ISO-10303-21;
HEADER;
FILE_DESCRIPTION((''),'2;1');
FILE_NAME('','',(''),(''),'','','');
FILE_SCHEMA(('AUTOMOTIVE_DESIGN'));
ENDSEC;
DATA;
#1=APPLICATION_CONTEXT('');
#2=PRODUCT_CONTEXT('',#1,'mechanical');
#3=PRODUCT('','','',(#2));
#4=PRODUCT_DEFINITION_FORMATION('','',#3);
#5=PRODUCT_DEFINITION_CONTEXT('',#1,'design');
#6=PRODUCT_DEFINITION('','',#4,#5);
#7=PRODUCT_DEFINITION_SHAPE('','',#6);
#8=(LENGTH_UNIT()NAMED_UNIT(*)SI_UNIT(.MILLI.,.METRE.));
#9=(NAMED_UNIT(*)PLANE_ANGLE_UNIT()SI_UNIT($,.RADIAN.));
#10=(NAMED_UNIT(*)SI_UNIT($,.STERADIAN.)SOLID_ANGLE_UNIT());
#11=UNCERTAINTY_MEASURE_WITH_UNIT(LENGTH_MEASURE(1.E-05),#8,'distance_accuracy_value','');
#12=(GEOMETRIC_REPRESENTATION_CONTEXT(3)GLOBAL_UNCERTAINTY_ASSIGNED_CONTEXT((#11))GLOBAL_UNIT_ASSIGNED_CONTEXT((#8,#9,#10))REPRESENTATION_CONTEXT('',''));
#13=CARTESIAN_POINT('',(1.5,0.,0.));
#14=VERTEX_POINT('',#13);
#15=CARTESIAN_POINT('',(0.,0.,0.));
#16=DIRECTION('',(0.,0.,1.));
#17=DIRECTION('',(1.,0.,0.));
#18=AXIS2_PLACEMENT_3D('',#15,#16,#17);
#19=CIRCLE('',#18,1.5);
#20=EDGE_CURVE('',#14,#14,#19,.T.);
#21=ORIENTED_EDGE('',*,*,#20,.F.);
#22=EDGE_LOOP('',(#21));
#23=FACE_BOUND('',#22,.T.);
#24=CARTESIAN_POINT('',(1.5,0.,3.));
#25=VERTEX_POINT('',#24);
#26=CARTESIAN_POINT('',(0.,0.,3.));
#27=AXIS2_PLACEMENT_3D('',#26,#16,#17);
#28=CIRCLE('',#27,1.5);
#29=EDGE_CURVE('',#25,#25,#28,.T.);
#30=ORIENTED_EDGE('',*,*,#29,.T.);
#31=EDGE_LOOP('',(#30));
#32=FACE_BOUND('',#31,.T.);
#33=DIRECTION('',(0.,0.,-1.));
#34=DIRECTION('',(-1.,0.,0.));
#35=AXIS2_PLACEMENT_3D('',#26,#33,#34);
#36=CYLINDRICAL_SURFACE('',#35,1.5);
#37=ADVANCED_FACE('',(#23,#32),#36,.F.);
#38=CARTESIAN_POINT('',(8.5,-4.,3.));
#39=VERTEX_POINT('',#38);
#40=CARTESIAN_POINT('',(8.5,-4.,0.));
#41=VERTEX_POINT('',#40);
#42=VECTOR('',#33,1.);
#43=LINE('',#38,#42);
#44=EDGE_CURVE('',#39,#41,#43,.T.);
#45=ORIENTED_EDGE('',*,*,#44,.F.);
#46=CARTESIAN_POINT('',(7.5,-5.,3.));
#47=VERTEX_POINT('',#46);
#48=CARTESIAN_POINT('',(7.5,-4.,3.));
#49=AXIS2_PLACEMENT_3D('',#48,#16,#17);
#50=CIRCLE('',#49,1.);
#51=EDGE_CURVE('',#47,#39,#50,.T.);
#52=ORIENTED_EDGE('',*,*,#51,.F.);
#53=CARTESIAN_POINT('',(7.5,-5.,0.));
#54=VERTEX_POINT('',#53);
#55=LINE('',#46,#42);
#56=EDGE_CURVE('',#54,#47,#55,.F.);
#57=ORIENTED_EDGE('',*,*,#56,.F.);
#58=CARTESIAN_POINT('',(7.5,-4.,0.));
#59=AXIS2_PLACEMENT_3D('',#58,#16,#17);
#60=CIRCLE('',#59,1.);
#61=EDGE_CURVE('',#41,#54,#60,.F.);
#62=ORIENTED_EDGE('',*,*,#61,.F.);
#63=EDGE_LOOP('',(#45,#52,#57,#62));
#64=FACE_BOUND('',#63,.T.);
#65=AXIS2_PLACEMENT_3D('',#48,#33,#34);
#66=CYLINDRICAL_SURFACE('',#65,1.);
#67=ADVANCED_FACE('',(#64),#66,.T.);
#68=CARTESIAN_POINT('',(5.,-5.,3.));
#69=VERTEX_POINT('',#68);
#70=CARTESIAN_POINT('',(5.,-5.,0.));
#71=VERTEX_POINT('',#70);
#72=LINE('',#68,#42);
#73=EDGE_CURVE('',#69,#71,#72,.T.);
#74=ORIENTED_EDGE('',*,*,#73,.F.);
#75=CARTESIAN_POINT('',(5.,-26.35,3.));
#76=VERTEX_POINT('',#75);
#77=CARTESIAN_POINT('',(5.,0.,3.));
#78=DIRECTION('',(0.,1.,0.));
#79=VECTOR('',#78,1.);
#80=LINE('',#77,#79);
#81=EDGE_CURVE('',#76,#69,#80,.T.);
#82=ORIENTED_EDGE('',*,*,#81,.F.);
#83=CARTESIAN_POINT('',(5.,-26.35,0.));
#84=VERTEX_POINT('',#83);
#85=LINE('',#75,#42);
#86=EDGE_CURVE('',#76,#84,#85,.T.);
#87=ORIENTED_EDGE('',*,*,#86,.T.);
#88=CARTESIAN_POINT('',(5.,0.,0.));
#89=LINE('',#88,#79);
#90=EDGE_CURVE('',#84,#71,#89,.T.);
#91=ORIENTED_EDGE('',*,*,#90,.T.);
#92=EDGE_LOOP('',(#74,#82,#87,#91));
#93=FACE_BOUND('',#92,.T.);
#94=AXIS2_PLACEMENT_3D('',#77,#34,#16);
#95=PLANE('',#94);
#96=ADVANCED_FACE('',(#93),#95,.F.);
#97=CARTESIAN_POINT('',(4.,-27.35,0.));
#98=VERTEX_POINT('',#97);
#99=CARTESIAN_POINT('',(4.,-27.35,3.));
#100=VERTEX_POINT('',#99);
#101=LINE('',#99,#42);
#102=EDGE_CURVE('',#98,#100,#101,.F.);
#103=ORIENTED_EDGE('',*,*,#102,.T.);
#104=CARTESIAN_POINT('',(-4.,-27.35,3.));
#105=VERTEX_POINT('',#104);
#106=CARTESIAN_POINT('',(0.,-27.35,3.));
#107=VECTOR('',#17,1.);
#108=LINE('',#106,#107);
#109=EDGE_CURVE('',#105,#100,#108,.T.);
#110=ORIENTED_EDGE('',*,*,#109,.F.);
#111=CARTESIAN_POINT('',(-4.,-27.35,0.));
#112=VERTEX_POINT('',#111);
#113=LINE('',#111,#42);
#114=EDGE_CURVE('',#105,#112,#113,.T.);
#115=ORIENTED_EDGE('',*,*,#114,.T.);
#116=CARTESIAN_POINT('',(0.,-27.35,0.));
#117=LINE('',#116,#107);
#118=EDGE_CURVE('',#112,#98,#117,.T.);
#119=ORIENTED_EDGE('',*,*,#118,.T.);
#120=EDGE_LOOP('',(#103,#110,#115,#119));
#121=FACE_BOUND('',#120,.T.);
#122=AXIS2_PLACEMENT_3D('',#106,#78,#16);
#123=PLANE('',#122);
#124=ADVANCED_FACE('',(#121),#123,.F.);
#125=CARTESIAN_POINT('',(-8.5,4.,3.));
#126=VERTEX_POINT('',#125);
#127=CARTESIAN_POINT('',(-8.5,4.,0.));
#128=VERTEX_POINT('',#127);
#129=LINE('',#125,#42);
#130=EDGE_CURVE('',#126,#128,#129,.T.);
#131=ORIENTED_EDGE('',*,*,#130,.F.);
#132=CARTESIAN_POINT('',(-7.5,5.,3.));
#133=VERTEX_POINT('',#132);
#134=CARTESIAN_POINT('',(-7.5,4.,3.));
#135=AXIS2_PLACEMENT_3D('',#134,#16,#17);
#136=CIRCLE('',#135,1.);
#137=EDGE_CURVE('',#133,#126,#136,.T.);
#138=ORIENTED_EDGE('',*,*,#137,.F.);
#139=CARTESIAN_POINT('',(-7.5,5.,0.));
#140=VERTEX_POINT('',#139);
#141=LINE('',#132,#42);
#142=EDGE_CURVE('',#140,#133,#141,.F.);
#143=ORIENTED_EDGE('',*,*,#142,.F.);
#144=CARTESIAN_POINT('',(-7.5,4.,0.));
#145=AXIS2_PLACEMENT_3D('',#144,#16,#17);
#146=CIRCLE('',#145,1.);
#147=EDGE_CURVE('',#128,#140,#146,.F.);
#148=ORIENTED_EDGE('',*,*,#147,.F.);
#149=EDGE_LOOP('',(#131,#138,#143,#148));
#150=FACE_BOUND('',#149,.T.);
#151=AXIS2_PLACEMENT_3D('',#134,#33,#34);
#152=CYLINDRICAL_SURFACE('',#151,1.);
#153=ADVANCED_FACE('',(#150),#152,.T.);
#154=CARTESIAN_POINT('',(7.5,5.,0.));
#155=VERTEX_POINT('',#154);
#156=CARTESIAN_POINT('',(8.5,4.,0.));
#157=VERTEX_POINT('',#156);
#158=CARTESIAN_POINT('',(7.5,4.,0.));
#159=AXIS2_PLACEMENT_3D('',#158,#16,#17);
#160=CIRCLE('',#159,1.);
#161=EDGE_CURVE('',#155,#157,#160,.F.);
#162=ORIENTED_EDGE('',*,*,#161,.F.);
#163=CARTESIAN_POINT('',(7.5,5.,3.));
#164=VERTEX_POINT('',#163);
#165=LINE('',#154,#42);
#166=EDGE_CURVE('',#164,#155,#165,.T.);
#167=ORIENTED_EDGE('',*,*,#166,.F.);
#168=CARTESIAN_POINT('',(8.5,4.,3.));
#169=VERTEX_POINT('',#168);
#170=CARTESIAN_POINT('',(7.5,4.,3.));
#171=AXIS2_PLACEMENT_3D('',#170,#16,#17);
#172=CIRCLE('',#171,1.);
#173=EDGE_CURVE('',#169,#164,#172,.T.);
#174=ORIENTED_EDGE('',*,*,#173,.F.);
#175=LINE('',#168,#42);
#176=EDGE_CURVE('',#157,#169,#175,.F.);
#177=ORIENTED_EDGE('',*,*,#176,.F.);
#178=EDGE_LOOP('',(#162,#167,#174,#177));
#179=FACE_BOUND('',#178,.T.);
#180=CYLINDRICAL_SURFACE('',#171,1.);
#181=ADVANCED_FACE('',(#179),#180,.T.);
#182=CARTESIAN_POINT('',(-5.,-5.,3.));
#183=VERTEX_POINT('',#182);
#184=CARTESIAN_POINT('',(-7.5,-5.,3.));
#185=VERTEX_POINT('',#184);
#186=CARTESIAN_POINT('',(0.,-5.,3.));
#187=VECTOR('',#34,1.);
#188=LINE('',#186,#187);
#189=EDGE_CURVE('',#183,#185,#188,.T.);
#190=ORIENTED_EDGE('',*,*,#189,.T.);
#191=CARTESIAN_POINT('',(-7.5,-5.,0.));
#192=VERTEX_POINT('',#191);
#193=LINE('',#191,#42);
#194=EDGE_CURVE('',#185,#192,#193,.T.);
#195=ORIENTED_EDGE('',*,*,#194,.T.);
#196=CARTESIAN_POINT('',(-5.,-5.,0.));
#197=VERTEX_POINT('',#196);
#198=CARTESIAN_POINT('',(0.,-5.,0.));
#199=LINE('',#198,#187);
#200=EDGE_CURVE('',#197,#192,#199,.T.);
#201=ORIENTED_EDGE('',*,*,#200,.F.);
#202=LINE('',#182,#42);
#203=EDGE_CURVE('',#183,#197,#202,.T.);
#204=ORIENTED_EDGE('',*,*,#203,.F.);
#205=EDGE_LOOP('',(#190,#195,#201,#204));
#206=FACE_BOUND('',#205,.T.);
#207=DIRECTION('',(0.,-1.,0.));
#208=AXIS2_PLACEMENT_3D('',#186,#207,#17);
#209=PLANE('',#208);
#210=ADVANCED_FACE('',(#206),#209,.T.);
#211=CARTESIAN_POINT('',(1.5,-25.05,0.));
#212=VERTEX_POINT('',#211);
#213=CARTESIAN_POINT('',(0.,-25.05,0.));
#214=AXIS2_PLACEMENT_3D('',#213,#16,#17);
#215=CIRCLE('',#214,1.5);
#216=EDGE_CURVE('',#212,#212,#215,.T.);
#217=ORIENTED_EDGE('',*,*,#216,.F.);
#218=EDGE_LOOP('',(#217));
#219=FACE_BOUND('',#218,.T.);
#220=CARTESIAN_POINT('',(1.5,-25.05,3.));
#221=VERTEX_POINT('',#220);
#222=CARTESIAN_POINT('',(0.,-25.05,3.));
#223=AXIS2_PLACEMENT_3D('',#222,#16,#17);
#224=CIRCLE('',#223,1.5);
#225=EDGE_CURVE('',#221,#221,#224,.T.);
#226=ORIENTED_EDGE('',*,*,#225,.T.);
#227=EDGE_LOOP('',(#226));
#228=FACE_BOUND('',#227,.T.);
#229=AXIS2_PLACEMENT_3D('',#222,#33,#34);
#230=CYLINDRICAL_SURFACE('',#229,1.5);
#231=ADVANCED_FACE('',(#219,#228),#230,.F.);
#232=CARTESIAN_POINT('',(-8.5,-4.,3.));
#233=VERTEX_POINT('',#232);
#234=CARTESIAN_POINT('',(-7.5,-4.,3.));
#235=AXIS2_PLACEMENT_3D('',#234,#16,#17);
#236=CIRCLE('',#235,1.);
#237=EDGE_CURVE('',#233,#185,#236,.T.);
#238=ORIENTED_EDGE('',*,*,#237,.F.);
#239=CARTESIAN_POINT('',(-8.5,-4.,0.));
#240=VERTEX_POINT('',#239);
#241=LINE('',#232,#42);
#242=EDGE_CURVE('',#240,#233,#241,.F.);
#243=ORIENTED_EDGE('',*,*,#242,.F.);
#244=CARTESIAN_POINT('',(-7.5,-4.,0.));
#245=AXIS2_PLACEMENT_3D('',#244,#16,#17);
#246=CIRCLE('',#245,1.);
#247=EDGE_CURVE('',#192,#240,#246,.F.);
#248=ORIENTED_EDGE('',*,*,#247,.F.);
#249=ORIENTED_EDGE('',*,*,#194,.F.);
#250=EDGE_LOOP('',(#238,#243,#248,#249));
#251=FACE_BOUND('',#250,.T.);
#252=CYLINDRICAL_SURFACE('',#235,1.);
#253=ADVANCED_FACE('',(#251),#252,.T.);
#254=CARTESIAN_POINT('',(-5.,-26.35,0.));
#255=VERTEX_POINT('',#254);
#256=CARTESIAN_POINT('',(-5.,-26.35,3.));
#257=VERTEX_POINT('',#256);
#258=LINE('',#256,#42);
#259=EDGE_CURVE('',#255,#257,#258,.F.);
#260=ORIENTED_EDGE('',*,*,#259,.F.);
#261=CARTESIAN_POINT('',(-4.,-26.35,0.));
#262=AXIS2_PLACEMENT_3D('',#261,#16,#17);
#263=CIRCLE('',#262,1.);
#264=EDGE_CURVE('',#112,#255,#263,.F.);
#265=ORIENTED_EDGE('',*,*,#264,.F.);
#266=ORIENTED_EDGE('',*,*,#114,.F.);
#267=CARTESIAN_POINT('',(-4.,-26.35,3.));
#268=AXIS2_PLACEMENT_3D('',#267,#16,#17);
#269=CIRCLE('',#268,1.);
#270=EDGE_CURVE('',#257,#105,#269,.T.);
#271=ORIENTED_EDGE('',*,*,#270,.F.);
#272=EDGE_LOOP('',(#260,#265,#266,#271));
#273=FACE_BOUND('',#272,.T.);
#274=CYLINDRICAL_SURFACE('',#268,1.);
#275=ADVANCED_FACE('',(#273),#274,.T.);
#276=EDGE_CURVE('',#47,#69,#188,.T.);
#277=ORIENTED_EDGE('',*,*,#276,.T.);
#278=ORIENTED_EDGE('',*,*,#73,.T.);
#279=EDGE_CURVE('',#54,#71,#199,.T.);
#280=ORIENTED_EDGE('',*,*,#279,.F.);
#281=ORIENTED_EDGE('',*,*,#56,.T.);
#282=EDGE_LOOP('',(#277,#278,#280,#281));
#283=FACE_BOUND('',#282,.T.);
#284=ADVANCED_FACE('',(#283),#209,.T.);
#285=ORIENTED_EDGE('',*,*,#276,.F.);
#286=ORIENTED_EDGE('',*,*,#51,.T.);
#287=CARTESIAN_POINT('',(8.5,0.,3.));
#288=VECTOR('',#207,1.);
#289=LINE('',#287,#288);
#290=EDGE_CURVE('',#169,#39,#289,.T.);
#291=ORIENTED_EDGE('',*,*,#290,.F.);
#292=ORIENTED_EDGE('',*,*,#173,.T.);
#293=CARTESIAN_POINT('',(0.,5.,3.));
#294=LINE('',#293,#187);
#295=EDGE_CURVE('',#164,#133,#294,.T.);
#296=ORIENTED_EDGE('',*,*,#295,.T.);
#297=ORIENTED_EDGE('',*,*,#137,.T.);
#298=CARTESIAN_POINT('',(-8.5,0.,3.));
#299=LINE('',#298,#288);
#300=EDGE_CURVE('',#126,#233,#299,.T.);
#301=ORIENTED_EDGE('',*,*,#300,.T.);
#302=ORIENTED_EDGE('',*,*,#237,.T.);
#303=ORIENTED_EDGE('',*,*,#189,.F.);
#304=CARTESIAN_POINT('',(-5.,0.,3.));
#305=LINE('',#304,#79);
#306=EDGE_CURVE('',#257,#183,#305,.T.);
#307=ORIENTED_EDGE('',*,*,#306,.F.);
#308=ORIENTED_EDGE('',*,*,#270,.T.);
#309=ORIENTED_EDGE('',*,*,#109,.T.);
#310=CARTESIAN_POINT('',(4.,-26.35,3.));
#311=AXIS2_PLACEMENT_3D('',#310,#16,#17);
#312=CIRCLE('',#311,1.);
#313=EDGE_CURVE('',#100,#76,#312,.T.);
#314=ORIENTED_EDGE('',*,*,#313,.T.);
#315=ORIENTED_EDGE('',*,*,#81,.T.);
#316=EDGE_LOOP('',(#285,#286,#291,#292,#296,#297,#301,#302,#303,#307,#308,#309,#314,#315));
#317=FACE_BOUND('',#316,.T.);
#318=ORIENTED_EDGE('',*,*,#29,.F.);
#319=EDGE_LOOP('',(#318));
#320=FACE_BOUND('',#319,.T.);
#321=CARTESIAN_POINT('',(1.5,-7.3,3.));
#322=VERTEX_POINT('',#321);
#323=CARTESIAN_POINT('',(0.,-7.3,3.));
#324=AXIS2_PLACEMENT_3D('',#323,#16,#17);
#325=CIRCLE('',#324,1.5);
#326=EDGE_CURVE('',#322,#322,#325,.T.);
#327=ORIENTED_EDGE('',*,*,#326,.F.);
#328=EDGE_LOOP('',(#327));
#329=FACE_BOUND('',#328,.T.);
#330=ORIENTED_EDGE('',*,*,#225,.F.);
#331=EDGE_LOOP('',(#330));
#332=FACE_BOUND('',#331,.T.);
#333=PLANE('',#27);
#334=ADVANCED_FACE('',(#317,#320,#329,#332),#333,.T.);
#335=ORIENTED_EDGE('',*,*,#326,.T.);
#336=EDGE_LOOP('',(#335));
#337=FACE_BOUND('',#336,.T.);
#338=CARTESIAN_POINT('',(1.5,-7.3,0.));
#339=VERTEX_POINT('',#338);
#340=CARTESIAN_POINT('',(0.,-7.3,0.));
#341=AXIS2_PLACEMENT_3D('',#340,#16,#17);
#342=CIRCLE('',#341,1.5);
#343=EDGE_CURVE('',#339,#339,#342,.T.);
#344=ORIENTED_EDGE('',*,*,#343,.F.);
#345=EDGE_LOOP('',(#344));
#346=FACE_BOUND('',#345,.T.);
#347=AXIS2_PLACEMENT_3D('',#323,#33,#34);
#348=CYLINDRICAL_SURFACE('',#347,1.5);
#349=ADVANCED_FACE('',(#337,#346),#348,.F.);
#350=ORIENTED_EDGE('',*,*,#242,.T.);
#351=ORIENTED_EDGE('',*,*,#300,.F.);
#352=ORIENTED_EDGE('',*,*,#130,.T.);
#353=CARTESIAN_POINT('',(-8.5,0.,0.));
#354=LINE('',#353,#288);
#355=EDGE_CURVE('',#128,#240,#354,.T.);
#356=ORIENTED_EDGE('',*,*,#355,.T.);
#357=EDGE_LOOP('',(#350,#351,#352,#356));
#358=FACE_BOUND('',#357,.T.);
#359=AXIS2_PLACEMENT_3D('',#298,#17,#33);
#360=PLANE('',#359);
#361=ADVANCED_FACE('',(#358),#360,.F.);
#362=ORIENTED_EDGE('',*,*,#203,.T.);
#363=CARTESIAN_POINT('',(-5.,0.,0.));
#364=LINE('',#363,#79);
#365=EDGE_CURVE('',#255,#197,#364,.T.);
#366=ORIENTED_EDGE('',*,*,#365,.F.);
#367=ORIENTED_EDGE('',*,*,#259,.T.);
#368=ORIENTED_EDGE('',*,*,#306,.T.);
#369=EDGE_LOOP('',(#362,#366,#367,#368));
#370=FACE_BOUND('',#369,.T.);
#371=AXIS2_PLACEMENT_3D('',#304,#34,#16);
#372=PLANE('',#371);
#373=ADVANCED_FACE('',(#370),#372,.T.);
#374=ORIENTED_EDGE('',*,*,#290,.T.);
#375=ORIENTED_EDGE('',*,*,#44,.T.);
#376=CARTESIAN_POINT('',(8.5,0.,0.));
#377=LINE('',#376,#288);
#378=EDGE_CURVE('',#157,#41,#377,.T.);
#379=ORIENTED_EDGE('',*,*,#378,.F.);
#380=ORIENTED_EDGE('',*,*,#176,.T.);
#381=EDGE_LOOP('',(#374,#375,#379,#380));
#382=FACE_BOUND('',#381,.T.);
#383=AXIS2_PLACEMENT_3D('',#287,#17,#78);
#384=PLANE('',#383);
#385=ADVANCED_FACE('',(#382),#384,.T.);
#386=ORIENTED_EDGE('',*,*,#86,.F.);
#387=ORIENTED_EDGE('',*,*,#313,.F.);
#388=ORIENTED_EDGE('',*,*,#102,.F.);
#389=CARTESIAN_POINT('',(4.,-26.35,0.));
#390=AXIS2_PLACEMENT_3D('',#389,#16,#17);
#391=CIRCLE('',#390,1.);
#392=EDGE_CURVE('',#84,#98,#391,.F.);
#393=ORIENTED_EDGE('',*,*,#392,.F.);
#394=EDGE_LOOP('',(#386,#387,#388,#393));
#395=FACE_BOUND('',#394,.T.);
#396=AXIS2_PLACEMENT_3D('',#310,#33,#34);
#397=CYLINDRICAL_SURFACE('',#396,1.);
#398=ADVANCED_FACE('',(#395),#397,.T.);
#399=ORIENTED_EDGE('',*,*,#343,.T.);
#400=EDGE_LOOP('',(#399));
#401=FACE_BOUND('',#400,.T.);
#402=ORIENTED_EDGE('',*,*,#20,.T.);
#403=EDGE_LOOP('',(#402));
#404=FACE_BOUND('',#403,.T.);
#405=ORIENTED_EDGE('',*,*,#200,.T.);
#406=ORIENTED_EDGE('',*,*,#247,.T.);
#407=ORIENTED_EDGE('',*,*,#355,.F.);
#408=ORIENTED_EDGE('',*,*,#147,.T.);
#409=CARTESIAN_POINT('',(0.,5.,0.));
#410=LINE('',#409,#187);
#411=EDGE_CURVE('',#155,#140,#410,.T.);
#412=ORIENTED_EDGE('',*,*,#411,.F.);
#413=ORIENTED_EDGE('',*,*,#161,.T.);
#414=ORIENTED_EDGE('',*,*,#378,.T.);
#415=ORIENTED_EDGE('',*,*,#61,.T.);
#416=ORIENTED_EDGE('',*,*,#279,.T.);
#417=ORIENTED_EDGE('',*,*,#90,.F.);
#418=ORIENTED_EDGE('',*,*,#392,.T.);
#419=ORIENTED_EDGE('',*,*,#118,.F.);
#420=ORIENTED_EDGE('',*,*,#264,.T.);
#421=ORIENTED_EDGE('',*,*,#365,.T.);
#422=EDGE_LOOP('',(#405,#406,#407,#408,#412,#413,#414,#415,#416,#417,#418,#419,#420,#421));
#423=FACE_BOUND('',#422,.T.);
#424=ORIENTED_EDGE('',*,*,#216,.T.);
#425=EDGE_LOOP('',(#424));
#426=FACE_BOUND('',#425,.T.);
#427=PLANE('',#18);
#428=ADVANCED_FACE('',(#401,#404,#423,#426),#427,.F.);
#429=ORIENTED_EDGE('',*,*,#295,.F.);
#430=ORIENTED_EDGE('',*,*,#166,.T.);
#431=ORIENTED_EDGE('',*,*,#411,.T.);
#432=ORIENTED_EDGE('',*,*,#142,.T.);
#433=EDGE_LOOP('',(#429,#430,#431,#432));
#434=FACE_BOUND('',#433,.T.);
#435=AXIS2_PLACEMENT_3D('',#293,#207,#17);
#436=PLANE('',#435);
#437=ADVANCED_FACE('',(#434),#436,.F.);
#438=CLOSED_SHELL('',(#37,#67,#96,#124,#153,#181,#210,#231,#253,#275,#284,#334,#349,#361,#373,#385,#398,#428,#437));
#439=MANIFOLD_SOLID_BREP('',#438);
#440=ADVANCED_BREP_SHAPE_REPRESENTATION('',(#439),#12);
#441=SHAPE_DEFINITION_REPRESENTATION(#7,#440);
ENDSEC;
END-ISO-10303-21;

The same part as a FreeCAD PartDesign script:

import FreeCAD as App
import Part
import Sketcher

V = App.Vector


def edges_at(feature, points):
    """Names of the edges that pass closest to the given points."""
    edges = feature.Shape.Edges
    near = lambda p: min(range(len(edges)), key=lambda i: edges[i].distToShape(Part.Vertex(*p))[0])
    return sorted({f"Edge{near(p) + 1}" for p in points})


def add_polygon(sketch, points):
    """Adds a closed chain of lines whose ends are joined by coincident constraints."""
    first, n = sketch.GeometryCount, len(points)
    for a, b in zip(points, points[1:] + points[:1]):
        sketch.addGeometry(Part.LineSegment(App.Vector(*a, 0), App.Vector(*b, 0)), False)
    for i in range(n):
        sketch.addConstraint(Sketcher.Constraint("Coincident", first + i, 2, first + (i + 1) % n, 1))

doc = App.newDocument("Part")
body = doc.addObject("PartDesign::Body", "Body")

# Sketch on XY plane
sketch1 = body.newObject("Sketcher::SketchObject", "Sketch")
sketch1.AttachmentSupport = (doc.getObject("XY_Plane"), [""])
sketch1.MapMode = "FlatFace"
add_polygon(sketch1, [(-8.5, 5), (-8.5, -5), (-5, -5), (-5, -27.4), (5, -27.4), (5, -5), (8.5, -5), (8.5, 5)])  # lines 0-7
sketch1.addGeometry(Part.Circle(V(0, 0, 0), V(0, 0, 1), 1.5), False)  # 8
sketch1.addGeometry(Part.Circle(V(0, -7.3, 0), V(0, 0, 1), 1.5), False)  # 9
sketch1.addGeometry(Part.Circle(V(0, -25.1, 0), V(0, 0, 1), 1.5), False)  # 10
sketch1.addConstraint(Sketcher.Constraint("Vertical", 0))
sketch1.addConstraint(Sketcher.Constraint("Horizontal", 1))
sketch1.addConstraint(Sketcher.Constraint("Vertical", 2))
sketch1.addConstraint(Sketcher.Constraint("Horizontal", 3))
sketch1.addConstraint(Sketcher.Constraint("Vertical", 4))
sketch1.addConstraint(Sketcher.Constraint("Horizontal", 5))
sketch1.addConstraint(Sketcher.Constraint("Vertical", 6))
sketch1.addConstraint(Sketcher.Constraint("Horizontal", 7))
sketch1.addConstraint(Sketcher.Constraint("Coincident", 8, 3, -1, 1))
sketch1.addConstraint(Sketcher.Constraint("Equal", 8, 9))
sketch1.addConstraint(Sketcher.Constraint("Equal", 9, 10))
sketch1.addConstraint(Sketcher.Constraint("Symmetric", 0, 2, 6, 2, -1, 1))
sketch1.addConstraint(Sketcher.Constraint("Symmetric", 1, 2, 4, 2, -2))
sketch1.addConstraint(Sketcher.Constraint("PointOnObject", 9, 3, -2))
sketch1.addConstraint(Sketcher.Constraint("PointOnObject", 10, 3, -2))
sketch1.addConstraint(Sketcher.Constraint("Equal", 3, 0))
sketch1.addConstraint(Sketcher.Constraint("Diameter", 8, 3.0))
sketch1.addConstraint(Sketcher.Constraint("DistanceX", 3, 1, 3, 2, 10.0))
sketch1.addConstraint(Sketcher.Constraint("DistanceX", 7, 2, 7, 1, 17.0))
sketch1.addConstraint(Sketcher.Constraint("DistanceY", 2, 2, 2, 1, 22.35))
sketch1.addConstraint(Sketcher.Constraint("DistanceY", 9, 3, -1, 1, 7.3))
sketch1.addConstraint(Sketcher.Constraint("DistanceY", 2, 2, 10, 3, 2.3))
pad1 = body.newObject("PartDesign::Pad", "Pad")
pad1.Profile = sketch1
pad1.Length = 3
doc.recompute()

fillet = body.newObject("PartDesign::Fillet", "Fillet")
fillet.Base = (pad1, edges_at(pad1, [(8.5, -5, 1.5)]))
fillet.Radius = 1
doc.recompute()

fillet2 = body.newObject("PartDesign::Fillet", "Fillet001")
fillet2.Base = (fillet, edges_at(fillet, [(5, -27.35, 1.5), (-5, -27.35, 1.5), (-8.5, -5, 1.5)]))
fillet2.Radius = 1
doc.recompute()

fillet3 = body.newObject("PartDesign::Fillet", "Fillet002")
fillet3.Base = (fillet2, edges_at(fillet2, [(8.5, 5, 1.5), (-8.5, 5, 1.5)]))
fillet3.Radius = 1

doc.recompute()
